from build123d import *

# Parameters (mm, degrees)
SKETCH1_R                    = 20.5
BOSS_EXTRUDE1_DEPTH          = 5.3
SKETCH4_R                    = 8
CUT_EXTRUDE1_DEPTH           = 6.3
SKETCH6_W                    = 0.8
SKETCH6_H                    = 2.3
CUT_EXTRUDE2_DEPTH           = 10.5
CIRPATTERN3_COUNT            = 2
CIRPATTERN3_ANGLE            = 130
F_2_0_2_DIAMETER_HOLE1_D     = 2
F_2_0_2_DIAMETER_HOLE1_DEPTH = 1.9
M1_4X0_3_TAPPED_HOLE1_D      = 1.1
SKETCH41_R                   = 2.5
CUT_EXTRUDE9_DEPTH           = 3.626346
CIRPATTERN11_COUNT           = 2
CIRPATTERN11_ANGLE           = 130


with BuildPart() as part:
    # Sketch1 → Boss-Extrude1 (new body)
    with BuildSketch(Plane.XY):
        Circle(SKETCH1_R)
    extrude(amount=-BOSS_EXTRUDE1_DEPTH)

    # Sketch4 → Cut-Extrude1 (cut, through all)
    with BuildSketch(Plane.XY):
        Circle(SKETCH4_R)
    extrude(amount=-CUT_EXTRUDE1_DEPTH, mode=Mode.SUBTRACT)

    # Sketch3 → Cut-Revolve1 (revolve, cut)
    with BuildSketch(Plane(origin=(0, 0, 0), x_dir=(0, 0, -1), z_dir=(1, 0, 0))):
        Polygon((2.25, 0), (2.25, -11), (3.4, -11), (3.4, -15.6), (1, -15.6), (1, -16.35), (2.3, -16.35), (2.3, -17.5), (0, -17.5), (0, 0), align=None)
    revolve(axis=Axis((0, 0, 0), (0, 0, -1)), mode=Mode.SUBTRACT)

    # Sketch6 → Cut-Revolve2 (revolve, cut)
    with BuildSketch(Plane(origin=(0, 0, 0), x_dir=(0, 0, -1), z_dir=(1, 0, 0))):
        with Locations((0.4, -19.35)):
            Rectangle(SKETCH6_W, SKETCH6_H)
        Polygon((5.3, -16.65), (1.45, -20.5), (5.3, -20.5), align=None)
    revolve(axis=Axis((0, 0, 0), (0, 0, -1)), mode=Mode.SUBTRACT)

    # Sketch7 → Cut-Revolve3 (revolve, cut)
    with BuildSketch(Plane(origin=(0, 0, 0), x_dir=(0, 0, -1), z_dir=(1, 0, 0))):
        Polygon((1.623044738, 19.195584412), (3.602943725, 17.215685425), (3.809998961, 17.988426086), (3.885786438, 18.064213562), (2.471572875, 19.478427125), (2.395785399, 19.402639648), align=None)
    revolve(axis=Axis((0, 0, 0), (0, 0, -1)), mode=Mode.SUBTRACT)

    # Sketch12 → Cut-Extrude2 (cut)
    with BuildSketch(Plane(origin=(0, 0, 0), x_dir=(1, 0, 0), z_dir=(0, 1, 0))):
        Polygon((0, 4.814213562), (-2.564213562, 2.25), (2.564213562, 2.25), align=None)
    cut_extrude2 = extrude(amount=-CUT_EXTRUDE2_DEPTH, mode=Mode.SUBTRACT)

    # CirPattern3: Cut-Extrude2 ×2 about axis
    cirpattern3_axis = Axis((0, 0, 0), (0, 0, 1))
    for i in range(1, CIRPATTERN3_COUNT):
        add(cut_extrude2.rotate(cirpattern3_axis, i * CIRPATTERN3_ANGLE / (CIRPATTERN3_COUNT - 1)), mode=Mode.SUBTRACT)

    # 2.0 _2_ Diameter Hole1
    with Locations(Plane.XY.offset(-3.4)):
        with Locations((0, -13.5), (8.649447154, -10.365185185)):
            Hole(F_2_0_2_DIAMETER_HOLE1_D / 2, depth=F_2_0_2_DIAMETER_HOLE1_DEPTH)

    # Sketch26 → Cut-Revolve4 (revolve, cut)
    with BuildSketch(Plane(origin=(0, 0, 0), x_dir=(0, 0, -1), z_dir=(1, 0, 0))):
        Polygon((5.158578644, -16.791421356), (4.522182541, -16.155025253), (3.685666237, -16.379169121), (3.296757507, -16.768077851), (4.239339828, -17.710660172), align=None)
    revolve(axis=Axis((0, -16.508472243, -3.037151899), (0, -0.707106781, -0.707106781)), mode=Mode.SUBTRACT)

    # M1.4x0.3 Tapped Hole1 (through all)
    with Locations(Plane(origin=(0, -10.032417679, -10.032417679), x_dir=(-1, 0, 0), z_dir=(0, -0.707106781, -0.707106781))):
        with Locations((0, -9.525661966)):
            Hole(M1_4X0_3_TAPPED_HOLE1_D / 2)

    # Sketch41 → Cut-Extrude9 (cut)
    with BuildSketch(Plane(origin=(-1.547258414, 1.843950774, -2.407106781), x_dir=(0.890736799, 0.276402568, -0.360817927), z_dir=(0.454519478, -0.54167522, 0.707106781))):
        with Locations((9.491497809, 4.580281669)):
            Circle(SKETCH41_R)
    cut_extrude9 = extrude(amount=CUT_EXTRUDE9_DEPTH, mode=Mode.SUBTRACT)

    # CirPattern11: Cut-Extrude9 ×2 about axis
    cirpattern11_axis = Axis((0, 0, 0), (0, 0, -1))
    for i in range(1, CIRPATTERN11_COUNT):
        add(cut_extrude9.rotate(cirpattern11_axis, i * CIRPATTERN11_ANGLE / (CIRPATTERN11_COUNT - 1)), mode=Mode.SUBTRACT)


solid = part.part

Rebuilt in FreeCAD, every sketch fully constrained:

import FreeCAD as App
import Part
import Sketcher
Q = App.Units.Quantity

doc = App.newDocument("Part")
body = doc.addObject("PartDesign::Body", "Body")

# Sketch on XY plane
sketch1 = body.newObject("Sketcher::SketchObject", "Sketch")
sketch1.AttachmentSupport = (doc.getObject("XY_Plane"), [""])
sketch1.MapMode = "FlatFace"
sketch1.addGeometry(Part.Circle(App.Vector(0, 0, 0), App.Vector(0, 0, 1), 20), False)
sketch1.addConstraint([
    Sketcher.Constraint("Coincident", 0, 3, -1, 1),
    Sketcher.Constraint("Diameter", 0, 41.0),
])
pad1 = body.newObject("PartDesign::Pad", "Pad")
pad1.Profile = sketch1
pad1.Length = 5.3
pad1.Reversed = True

# Sketch on XY plane
sketch2 = body.newObject("Sketcher::SketchObject", "Sketch001")
sketch2.AttachmentSupport = (doc.getObject("XY_Plane"), [""])
sketch2.MapMode = "FlatFace"
sketch2.addGeometry(Part.Circle(App.Vector(0, 0, 0), App.Vector(0, 0, 1), 8), False)
sketch2.addConstraint([
    Sketcher.Constraint("Coincident", 0, 3, -1, 1),
    Sketcher.Constraint("Diameter", 0, 16.0),
])
pocket1 = body.newObject("PartDesign::Pocket", "Pocket")
pocket1.Profile = sketch2
pocket1.Type = "ThroughAll"

# Sketch on YZ plane
sketch3 = body.newObject("Sketcher::SketchObject", "Sketch002")
sketch3.AttachmentSupport = (doc.getObject("YZ_Plane"), [""])
sketch3.MapMode = "FlatFace"
sketch3.addGeometry([
    Part.LineSegment(App.Vector(-11, -2.2, 0), App.Vector(0, -2.2, 0)),  # 0
    Part.LineSegment(App.Vector(0, -2.2, 0), App.Vector(0, 0, 0)),  # 1
    Part.LineSegment(App.Vector(0, 0, 0), App.Vector(-17.5, 0, 0)),  # 2
    Part.LineSegment(App.Vector(-17.5, 0, 0), App.Vector(-17.5, -2.3, 0)),  # 3
    Part.LineSegment(App.Vector(-17.5, -2.3, 0), App.Vector(-16.4, -2.3, 0)),  # 4
    Part.LineSegment(App.Vector(-16.4, -2.3, 0), App.Vector(-16.4, -1, 0)),  # 5
    Part.LineSegment(App.Vector(-16.4, -1, 0), App.Vector(-15.6, -1, 0)),  # 6
    Part.LineSegment(App.Vector(-15.6, -1, 0), App.Vector(-15.6, -3.4, 0)),  # 7
    Part.LineSegment(App.Vector(-15.6, -3.4, 0), App.Vector(-11, -3.4, 0)),  # 8
    Part.LineSegment(App.Vector(-11, -3.4, 0), App.Vector(-11, -2.2, 0)),  # 9
], False)
sketch3.addConstraint([
    Sketcher.Constraint("Coincident", 0, 2, 1, 1),
    Sketcher.Constraint("Coincident", 1, 2, 2, 1),
    Sketcher.Constraint("Coincident", 2, 2, 3, 1),
    Sketcher.Constraint("Coincident", 3, 2, 4, 1),
    Sketcher.Constraint("Coincident", 4, 2, 5, 1),
    Sketcher.Constraint("Coincident", 5, 2, 6, 1),
    Sketcher.Constraint("Coincident", 6, 2, 7, 1),
    Sketcher.Constraint("Coincident", 7, 2, 8, 1),
    Sketcher.Constraint("Coincident", 8, 2, 9, 1),
    Sketcher.Constraint("Coincident", 9, 2, 0, 1),
    Sketcher.Constraint("Horizontal", 0),
    Sketcher.Constraint("Vertical", 1),
    Sketcher.Constraint("Horizontal", 2),
    Sketcher.Constraint("Vertical", 3),
    Sketcher.Constraint("Horizontal", 4),
    Sketcher.Constraint("Vertical", 5),
    Sketcher.Constraint("Horizontal", 6),
    Sketcher.Constraint("Vertical", 7),
    Sketcher.Constraint("Horizontal", 8),
    Sketcher.Constraint("Vertical", 9),
    Sketcher.Constraint("Coincident", 1, 2, -1, 1),
    Sketcher.Constraint("Equal", 4, 9),
    Sketcher.Constraint("DistanceX", 0, 1, 0, 2, 11.0),
    Sketcher.Constraint("DistanceX", 2, 2, 2, 1, 17.5),
    Sketcher.Constraint("DistanceX", 8, 1, 8, 2, 4.6),
    Sketcher.Constraint("DistanceY", 3, 2, 3, 1, 2.3),
    Sketcher.Constraint("DistanceY", 5, 1, 5, 2, 1.3),
    Sketcher.Constraint("DistanceY", 7, 2, 7, 1, 2.4),
    Sketcher.Constraint("DistanceX", 4, 1, 4, 2, 1.15),
])
groove = body.newObject("PartDesign::Groove", "Groove")
groove.Profile = sketch3
groove.ReferenceAxis = (sketch3, ["V_Axis"])
groove.Angle = 360

# Sketch on YZ plane
sketch4 = body.newObject("Sketcher::SketchObject", "Sketch003")
sketch4.AttachmentSupport = (doc.getObject("YZ_Plane"), [""])
sketch4.MapMode = "FlatFace"
sketch4.addGeometry([
    Part.LineSegment(App.Vector(-18.2, 0, 0), App.Vector(-20.5, 0, 0)),  # 0
    Part.LineSegment(App.Vector(-20.5, 0, 0), App.Vector(-20.5, -0.8, 0)),  # 1
    Part.LineSegment(App.Vector(-20.5, -0.8, 0), App.Vector(-18.2, -0.8, 0)),  # 2
    Part.LineSegment(App.Vector(-18.2, -0.8, 0), App.Vector(-18.2, 0, 0)),  # 3
    Part.LineSegment(App.Vector(-16.6, -5.3, 0), App.Vector(-20.5, -1.4, 0)),  # 4
    Part.LineSegment(App.Vector(-20.5, -1.4, 0), App.Vector(-20.5, -5.3, 0)),  # 5
    Part.LineSegment(App.Vector(-20.5, -5.3, 0), App.Vector(-16.6, -5.3, 0)),  # 6
], False)
sketch4.addConstraint([
    Sketcher.Constraint("Coincident", 0, 2, 1, 1),
    Sketcher.Constraint("Coincident", 1, 2, 2, 1),
    Sketcher.Constraint("Coincident", 2, 2, 3, 1),
    Sketcher.Constraint("Coincident", 3, 2, 0, 1),
    Sketcher.Constraint("Coincident", 4, 2, 5, 1),
    Sketcher.Constraint("Coincident", 5, 2, 6, 1),
    Sketcher.Constraint("Coincident", 6, 2, 4, 1),
    Sketcher.Constraint("Horizontal", 0),
    Sketcher.Constraint("Vertical", 1),
    Sketcher.Constraint("Horizontal", 2),
    Sketcher.Constraint("Vertical", 3),
    Sketcher.Constraint("Vertical", 5),
    Sketcher.Constraint("Horizontal", 6),
    Sketcher.Constraint("PointOnObject", 0, 2, -1),
    Sketcher.Constraint("Vertical", 1, 2, 4, 2),
    Sketcher.Constraint("Equal", 6, 5),
    Sketcher.Constraint("DistanceX", 0, 2, 0, 1, 2.3),
    Sketcher.Constraint("DistanceY", 1, 2, 1, 1, 0.8),
    Sketcher.Constraint("DistanceX", 6, 1, 6, 2, 3.85),
    Sketcher.Constraint("DistanceX", 0, 2, -1, 1, 20.5),
    Sketcher.Constraint("DistanceY", 5, 2, -1, 1, 5.3),
])
groove2 = body.newObject("PartDesign::Groove", "Groove001")
groove2.Profile = sketch4
groove2.ReferenceAxis = (sketch4, ["V_Axis"])
groove2.Angle = 360

# Sketch on YZ plane
sketch5 = body.newObject("Sketcher::SketchObject", "Sketch004")
sketch5.AttachmentSupport = (doc.getObject("YZ_Plane"), [""])
sketch5.MapMode = "FlatFace"
sketch5.addGeometry([
    Part.LineSegment(App.Vector(19.2, -1.62, 0), App.Vector(17.22, -3.6, 0)),  # 0
    Part.LineSegment(App.Vector(17.22, -3.6, 0), App.Vector(17.99, -3.81, 0)),  # 1
    Part.LineSegment(App.Vector(17.99, -3.81, 0), App.Vector(18.06, -3.89, 0)),  # 2
    Part.LineSegment(App.Vector(18.06, -3.89, 0), App.Vector(19.48, -2.47, 0)),  # 3
    Part.LineSegment(App.Vector(19.48, -2.47, 0), App.Vector(19.4, -2.4, 0)),  # 4
    Part.LineSegment(App.Vector(19.4, -2.4, 0), App.Vector(19.2, -1.62, 0)),  # 5
], False)
sketch5.addConstraint([
    Sketcher.Constraint("Coincident", 0, 2, 1, 1),
    Sketcher.Constraint("Coincident", 1, 2, 2, 1),
    Sketcher.Constraint("Coincident", 2, 2, 3, 1),
    Sketcher.Constraint("Coincident", 3, 2, 4, 1),
    Sketcher.Constraint("Coincident", 4, 2, 5, 1),
    Sketcher.Constraint("Coincident", 5, 2, 0, 1),
    Sketcher.Constraint("Perpendicular", 0, 2),
    Sketcher.Constraint("Perpendicular", 2, 3),
    Sketcher.Constraint("Perpendicular", 3, 4),
    Sketcher.Constraint("Equal", 2, 4),
    Sketcher.Constraint("Equal", 1, 5),
    Sketcher.Constraint("Angle", 0, Q("-135 deg")),
    Sketcher.Constraint("Angle", 1, Q("-15 deg")),
    Sketcher.Constraint("Distance", 3, 2.0),
    Sketcher.Constraint("Distance", 0, 2.8),
    Sketcher.Constraint("DistanceY", 1, 2, -1, 1, 3.809999),
    Sketcher.Constraint("DistanceX", 1, 2, 3, 2, 1.490001),
    Sketcher.Constraint("DistanceX", -1, 1, 4, 2, 19.40264),
])
groove3 = body.newObject("PartDesign::Groove", "Groove002")
groove3.Profile = sketch5
groove3.ReferenceAxis = (sketch5, ["V_Axis"])
groove3.Angle = 360

# Sketch on XZ plane
sketch6 = body.newObject("Sketcher::SketchObject", "Sketch005")
sketch6.AttachmentSupport = (doc.getObject("XZ_Plane"), [""])
sketch6.MapMode = "FlatFace"
sketch6.addGeometry([
    Part.LineSegment(App.Vector(0, -4.8, 0), App.Vector(-2.6, -2.2, 0)),
    Part.LineSegment(App.Vector(-2.6, -2.2, 0), App.Vector(2.6, -2.2, 0)),
    Part.LineSegment(App.Vector(2.6, -2.2, 0), App.Vector(0, -4.8, 0)),
], False)
sketch6.addConstraint([
    Sketcher.Constraint("Coincident", 0, 2, 1, 1),
    Sketcher.Constraint("Coincident", 1, 2, 2, 1),
    Sketcher.Constraint("Coincident", 2, 2, 0, 1),
    Sketcher.Constraint("Horizontal", 1),
    Sketcher.Constraint("PointOnObject", 2, 2, -2),
    Sketcher.Constraint("Perpendicular", 0, 2),
    Sketcher.Constraint("Equal", 0, 2),
    Sketcher.Constraint("DistanceY", 0, 2, -1, 1, 2.25),
    Sketcher.Constraint("DistanceX", 1, 1, 1, 2, 5.128427),
])
pocket2 = body.newObject("PartDesign::Pocket", "Pocket001")
pocket2.Profile = sketch6
pocket2.Length = 10.5
pocket2.Reversed = True
doc.recompute()

polarpattern = body.newObject("PartDesign::PolarPattern", "PolarPattern")
polarpattern.Originals = [pocket2]
polarpattern.Axis = (doc.getObject("Z_Axis"), [""])
polarpattern.Angle = 130
polarpattern.Occurrences = 2
body.Tip = polarpattern

# Sketch on XY plane
sketch7 = body.newObject("Sketcher::SketchObject", "Sketch006")
sketch7.AttachmentSupport = (doc.getObject("XY_Plane"), [""])
sketch7.MapMode = "FlatFace"
sketch7.AttachmentOffset = App.Placement(App.Vector(0, 0, -3.4), App.Rotation())
sketch7.addGeometry([
    Part.Circle(App.Vector(0, -13.5, 0), App.Vector(0, 0, 1), 1),
    Part.Circle(App.Vector(8.6, -10.4, 0), App.Vector(0, 0, 1), 1),
], False)
sketch7.addConstraint([
    Sketcher.Constraint("Equal", 0, 1),
    Sketcher.Constraint("PointOnObject", 0, 3, -2),
    Sketcher.Constraint("Diameter", 0, 2.0),
    Sketcher.Constraint("DistanceY", 0, 3, -1, 1, 13.5),
    Sketcher.Constraint("DistanceX", -1, 1, 1, 3, 8.649447),
    Sketcher.Constraint("DistanceY", 1, 3, -1, 1, 10.365185),
])
doc.recompute()
hole = body.newObject("PartDesign::Hole", "Hole")
hole.Profile = sketch7
hole.ThreadType = "None"
hole.Diameter = 2
hole.DepthType = "Dimension"
hole.Depth = 1.9
hole.DrillPoint = "Flat"

# Sketch on YZ plane
sketch8 = body.newObject("Sketcher::SketchObject", "Sketch007")
sketch8.AttachmentSupport = (doc.getObject("YZ_Plane"), [""])
sketch8.MapMode = "FlatFace"
sketch8.addGeometry([
    Part.LineSegment(App.Vector(-16.8, -5.2, 0), App.Vector(-16.2, -4.5, 0)),  # 0
    Part.LineSegment(App.Vector(-16.2, -4.5, 0), App.Vector(-16.4, -3.7, 0)),  # 1
    Part.LineSegment(App.Vector(-16.4, -3.7, 0), App.Vector(-16.8, -3.3, 0)),  # 2
    Part.LineSegment(App.Vector(-16.8, -3.3, 0), App.Vector(-17.7, -4.2, 0)),  # 3
    Part.LineSegment(App.Vector(-17.7, -4.2, 0), App.Vector(-16.8, -5.2, 0)),  # 4
], False)
sketch8.addGeometry(Part.LineSegment(App.Vector(-16.8, -3.3, 0), App.Vector(-17.7, -4.2, 0)), True)  # axis
sketch8.addConstraint([
    Sketcher.Constraint("Coincident", 0, 2, 1, 1),
    Sketcher.Constraint("Coincident", 1, 2, 2, 1),
    Sketcher.Constraint("Coincident", 2, 2, 3, 1),
    Sketcher.Constraint("Coincident", 3, 2, 4, 1),
    Sketcher.Constraint("Coincident", 4, 2, 0, 1),
    Sketcher.Constraint("Coincident", 5, 1, 2, 2),
    Sketcher.Constraint("Coincident", 5, 2, 3, 2),
    Sketcher.Constraint("Perpendicular", 0, 2),
    Sketcher.Constraint("Perpendicular", 2, 3),
    Sketcher.Constraint("Perpendicular", 3, 4),
    Sketcher.Constraint("Angle", 0, Q("45 deg")),
    Sketcher.Constraint("Angle", 1, Q("105 deg")),
    Sketcher.Constraint("Distance", 0, 0.9),
    Sketcher.Constraint("Distance", 4, 1.3),
    Sketcher.Constraint("Distance", 2, 0.55),
    Sketcher.Constraint("DistanceX", 1, 2, -1, 1, 16.379169),
    Sketcher.Constraint("DistanceY", 3, 2, -1, 1, 4.23934),
])
groove4 = body.newObject("PartDesign::Groove", "Groove003")
groove4.Profile = sketch8
groove4.ReferenceAxis = (sketch8, ["Axis0"])
groove4.Angle = 360

# Sketch on an angled plane
sketch9 = body.newObject("Sketcher::SketchObject", "Sketch008")
sketch9.Placement = App.Placement(App.Vector(0, -10.032418, -10.032418), App.Rotation(App.Vector(-1, 0, 0), App.Vector(0, 0.707106781, -0.707106781), App.Vector(0, -0.707106781, -0.707106781), "ZXY"))
sketch9.addGeometry(Part.Circle(App.Vector(0, -9.5, 0), App.Vector(0, 0, 1), 0.6), False)
sketch9.addConstraint([
    Sketcher.Constraint("PointOnObject", 0, 3, -2),
    Sketcher.Constraint("Diameter", 0, 1.1),
    Sketcher.Constraint("DistanceY", 0, 3, -1, 1, 9.525662),
])
doc.recompute()
hole2 = body.newObject("PartDesign::Hole", "Hole001")
hole2.Profile = sketch9
hole2.ThreadType = "None"
hole2.Diameter = 1.1
hole2.DepthType = "ThroughAll"

# Sketch on an angled plane
sketch10 = body.newObject("Sketcher::SketchObject", "Sketch009")
sketch10.Placement = App.Placement(App.Vector(-1.547258, 1.843951, -2.407107), App.Rotation(App.Vector(0.890736798, 0.276402568, -0.360817927), App.Vector(0, 0.793844806, 0.608120402), App.Vector(0.454519478, -0.54167522, 0.707106781), "ZXY"))
sketch10.addGeometry(Part.Circle(App.Vector(9.5, 4.6, 0), App.Vector(0, 0, 1), 2.5), False)
sketch10.addConstraint([
    Sketcher.Constraint("Diameter", 0, 5.0),
    Sketcher.Constraint("DistanceY", -1, 1, 0, 3, 4.580282),
    Sketcher.Constraint("DistanceX", -1, 1, 0, 3, 9.491498),
])
pocket3 = body.newObject("PartDesign::Pocket", "Pocket002")
pocket3.Profile = sketch10
pocket3.Length = 3.626346
pocket3.Reversed = True
doc.recompute()

polarpattern2 = body.newObject("PartDesign::PolarPattern", "PolarPattern001")
polarpattern2.Originals = [pocket3]
polarpattern2.Axis = (doc.getObject("Z_Axis"), [""])
polarpattern2.Angle = 130
polarpattern2.Occurrences = 2
polarpattern2.Reversed = True
body.Tip = polarpattern2

doc.recompute()
